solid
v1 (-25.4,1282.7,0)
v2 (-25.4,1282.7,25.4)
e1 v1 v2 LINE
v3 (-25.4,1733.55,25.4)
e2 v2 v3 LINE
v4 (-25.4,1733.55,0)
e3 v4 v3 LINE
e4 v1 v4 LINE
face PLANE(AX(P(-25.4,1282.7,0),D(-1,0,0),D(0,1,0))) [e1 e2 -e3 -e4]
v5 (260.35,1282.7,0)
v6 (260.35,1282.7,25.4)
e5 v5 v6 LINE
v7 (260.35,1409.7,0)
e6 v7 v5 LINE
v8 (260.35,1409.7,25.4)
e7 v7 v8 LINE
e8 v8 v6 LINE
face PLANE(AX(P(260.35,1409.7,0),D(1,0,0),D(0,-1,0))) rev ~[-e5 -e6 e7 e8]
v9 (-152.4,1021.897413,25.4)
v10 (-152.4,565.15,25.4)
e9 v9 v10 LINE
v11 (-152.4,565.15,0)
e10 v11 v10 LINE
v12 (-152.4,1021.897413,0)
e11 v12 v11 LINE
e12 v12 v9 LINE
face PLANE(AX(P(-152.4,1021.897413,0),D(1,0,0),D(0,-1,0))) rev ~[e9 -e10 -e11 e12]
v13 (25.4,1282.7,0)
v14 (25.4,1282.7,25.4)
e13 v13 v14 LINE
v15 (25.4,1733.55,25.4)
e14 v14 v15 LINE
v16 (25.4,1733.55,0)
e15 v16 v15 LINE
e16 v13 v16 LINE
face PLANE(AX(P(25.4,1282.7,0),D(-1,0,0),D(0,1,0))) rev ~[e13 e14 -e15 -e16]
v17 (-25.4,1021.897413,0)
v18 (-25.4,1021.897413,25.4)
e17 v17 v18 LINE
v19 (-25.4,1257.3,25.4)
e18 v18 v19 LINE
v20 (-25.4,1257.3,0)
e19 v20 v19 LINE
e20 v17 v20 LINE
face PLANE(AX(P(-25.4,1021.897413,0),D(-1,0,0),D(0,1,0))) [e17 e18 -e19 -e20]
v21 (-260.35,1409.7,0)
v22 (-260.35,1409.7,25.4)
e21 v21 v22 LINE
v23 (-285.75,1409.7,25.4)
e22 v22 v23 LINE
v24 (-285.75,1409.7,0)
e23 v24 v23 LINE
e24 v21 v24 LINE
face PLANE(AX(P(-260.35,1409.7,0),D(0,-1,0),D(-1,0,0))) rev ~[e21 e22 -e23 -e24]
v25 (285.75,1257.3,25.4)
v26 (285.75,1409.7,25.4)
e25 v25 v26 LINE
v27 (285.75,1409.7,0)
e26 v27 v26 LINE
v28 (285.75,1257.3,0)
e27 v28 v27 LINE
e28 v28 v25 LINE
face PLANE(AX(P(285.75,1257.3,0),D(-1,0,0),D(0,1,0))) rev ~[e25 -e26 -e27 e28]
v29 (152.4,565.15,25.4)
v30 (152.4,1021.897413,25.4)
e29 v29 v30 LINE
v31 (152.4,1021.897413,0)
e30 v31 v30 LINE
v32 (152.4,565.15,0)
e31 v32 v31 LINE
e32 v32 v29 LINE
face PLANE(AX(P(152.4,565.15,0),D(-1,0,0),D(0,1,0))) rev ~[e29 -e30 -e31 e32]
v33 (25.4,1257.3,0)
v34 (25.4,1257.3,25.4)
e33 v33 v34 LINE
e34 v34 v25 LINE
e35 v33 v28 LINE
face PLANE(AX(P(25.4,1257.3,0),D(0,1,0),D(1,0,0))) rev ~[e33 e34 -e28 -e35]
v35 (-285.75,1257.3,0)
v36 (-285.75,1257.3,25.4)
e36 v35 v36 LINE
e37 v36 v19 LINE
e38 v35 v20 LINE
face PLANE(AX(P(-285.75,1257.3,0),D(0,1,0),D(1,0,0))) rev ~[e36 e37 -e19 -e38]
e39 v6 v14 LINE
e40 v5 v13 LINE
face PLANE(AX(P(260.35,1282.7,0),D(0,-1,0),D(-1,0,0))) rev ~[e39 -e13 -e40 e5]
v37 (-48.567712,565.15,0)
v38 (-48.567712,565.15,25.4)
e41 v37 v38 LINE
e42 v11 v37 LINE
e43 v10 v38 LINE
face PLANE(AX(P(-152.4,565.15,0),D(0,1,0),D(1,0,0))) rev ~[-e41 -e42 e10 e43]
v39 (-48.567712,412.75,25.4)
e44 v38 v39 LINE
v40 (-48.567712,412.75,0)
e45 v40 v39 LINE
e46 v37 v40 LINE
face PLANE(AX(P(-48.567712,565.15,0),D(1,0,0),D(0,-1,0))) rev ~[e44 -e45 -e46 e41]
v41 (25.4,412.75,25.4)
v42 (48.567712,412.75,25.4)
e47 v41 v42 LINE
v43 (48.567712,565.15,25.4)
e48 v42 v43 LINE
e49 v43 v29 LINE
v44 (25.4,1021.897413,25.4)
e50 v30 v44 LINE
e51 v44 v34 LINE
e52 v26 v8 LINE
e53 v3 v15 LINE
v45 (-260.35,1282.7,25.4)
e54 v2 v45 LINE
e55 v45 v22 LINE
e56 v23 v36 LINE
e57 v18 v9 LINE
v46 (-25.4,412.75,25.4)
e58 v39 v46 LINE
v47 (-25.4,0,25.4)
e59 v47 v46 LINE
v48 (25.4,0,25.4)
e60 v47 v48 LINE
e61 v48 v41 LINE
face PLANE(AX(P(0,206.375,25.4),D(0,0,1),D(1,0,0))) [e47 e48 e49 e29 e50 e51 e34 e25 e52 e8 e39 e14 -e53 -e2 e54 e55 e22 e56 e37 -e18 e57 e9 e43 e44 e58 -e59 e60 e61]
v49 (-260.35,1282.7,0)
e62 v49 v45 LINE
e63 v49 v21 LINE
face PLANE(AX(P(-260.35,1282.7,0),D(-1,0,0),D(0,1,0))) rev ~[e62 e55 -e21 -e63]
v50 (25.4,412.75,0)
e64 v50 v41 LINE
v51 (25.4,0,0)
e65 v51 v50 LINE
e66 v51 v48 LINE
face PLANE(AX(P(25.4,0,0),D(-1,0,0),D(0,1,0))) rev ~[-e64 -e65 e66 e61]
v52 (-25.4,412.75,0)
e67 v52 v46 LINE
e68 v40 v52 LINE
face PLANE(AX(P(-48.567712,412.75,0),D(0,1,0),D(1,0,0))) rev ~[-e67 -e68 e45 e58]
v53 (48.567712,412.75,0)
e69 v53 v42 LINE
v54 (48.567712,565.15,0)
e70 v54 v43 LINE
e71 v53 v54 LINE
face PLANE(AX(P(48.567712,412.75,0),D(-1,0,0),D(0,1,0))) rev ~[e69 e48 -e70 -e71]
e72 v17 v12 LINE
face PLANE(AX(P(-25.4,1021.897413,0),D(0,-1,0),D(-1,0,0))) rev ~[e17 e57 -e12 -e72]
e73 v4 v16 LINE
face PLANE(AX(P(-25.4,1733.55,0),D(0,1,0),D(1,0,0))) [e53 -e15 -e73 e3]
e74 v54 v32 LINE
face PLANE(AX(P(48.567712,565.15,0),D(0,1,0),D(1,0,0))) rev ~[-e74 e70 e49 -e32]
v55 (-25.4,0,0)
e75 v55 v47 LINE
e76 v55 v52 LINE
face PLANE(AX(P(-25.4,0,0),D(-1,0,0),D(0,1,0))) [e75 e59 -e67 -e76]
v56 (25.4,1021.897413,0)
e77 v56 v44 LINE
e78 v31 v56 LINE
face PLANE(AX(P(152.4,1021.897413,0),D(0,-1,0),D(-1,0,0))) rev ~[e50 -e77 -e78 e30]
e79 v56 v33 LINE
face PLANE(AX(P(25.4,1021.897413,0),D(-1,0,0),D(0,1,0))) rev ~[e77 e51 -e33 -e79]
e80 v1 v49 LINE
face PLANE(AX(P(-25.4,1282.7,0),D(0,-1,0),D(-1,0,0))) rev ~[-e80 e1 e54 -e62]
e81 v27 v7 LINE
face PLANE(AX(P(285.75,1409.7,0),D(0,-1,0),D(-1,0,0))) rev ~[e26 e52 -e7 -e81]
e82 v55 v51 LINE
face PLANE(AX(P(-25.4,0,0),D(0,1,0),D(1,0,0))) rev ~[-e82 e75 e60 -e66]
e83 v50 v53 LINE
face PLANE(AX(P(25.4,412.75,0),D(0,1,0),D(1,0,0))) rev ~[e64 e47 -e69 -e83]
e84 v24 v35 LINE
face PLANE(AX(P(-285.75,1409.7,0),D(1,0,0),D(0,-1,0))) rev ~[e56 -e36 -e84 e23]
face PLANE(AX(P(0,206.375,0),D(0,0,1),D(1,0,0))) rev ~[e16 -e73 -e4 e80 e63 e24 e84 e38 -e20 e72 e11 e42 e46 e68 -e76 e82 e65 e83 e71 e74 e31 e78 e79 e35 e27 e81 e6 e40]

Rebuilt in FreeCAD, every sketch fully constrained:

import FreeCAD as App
import Part
import Sketcher
Q = App.Units.Quantity


def add_polygon(sketch, points):
    """Adds a closed chain of lines whose ends are joined by coincident constraints."""
    first, n = sketch.GeometryCount, len(points)
    for a, b in zip(points, points[1:] + points[:1]):
        sketch.addGeometry(Part.LineSegment(App.Vector(*a, 0), App.Vector(*b, 0)), False)
    for i in range(n):
        sketch.addConstraint(Sketcher.Constraint("Coincident", first + i, 2, first + (i + 1) % n, 1))

doc = App.newDocument("Part")
body = doc.addObject("PartDesign::Body", "Body")

# Sketch on XY plane
sketch1 = body.newObject("Sketcher::SketchObject", "Sketch")
sketch1.AttachmentSupport = (doc.getObject("XY_Plane"), [""])
sketch1.MapMode = "FlatFace"
add_polygon(sketch1, [(49, 413), (49, 565), (152, 565), (152, 1022), (25, 1022), (25, 1257), (286, 1257), (286, 1410), (260, 1410), (260, 1283), (25, 1283), (25, 1734), (-25, 1734), (-25, 1283), (-260, 1283), (-260, 1410), (-286, 1410), (-286, 1257), (-25, 1257), (-25, 1022), (-152, 1022), (-152, 565), (-49, 565), (-49, 413), (-25, 413), (-25, 0), (25, 0), (25, 413)])  # lines 0-27
sketch1.addConstraint([
    Sketcher.Constraint("Vertical", 0),
    Sketcher.Constraint("Horizontal", 1),
    Sketcher.Constraint("Vertical", 2),
    Sketcher.Constraint("Horizontal", 3),
    Sketcher.Constraint("Vertical", 4),
    Sketcher.Constraint("Horizontal", 5),
    Sketcher.Constraint("Vertical", 6),
    Sketcher.Constraint("Horizontal", 7),
    Sketcher.Constraint("Vertical", 8),
    Sketcher.Constraint("Horizontal", 9),
    Sketcher.Constraint("Vertical", 10),
    Sketcher.Constraint("Horizontal", 11),
    Sketcher.Constraint("Vertical", 12),
    Sketcher.Constraint("Horizontal", 13),
    Sketcher.Constraint("Vertical", 14),
    Sketcher.Constraint("Horizontal", 15),
    Sketcher.Constraint("Vertical", 16),
    Sketcher.Constraint("Horizontal", 17),
    Sketcher.Constraint("Vertical", 18),
    Sketcher.Constraint("Horizontal", 19),
    Sketcher.Constraint("Vertical", 20),
    Sketcher.Constraint("Horizontal", 21),
    Sketcher.Constraint("Vertical", 22),
    Sketcher.Constraint("Horizontal", 23),
    Sketcher.Constraint("Vertical", 24),
    Sketcher.Constraint("Horizontal", 25),
    Sketcher.Constraint("Vertical", 26),
    Sketcher.Constraint("Horizontal", 27),
    Sketcher.Constraint("Symmetric", 24, 2, 25, 2, -1, 1),
    Sketcher.Constraint("Symmetric", 9, 2, 12, 2, -2),
    Sketcher.Constraint("Symmetric", 7, 2, 14, 2, -2),
    Sketcher.Constraint("Symmetric", 5, 2, 16, 2, -2),
    Sketcher.Constraint("Symmetric", 3, 2, 18, 2, -2),
    Sketcher.Constraint("Symmetric", 1, 2, 20, 2, -2),
    Sketcher.Constraint("Symmetric", 22, 2, 27, 2, -2),
    Sketcher.Constraint("Vertical", 4, 2, 9, 2),
    Sketcher.Constraint("Vertical", 18, 2, 23, 2),
    Sketcher.Constraint("Equal", 0, 6),
    Sketcher.Constraint("Equal", 19, 8),
    Sketcher.Constraint("DistanceX", 3, 2, 3, 1, Q("5 in")),
    Sketcher.Constraint("DistanceX", 7, 2, 7, 1, Q("1 in")),
    Sketcher.Constraint("DistanceX", 11, 2, 11, 1, Q("2 in")),
    Sketcher.Constraint("DistanceY", 0, 1, 0, 2, Q("6 in")),
    Sketcher.Constraint("DistanceX", 5, 1, 5, 2, Q("10.25 in")),
    Sketcher.Constraint("DistanceY", 10, 1, 10, 2, Q("17.75 in")),
    Sketcher.Constraint("DistanceY", 24, 2, 24, 1, Q("16.25 in")),
    Sketcher.Constraint("DistanceY", -1, 1, 4, 2, Q("49.5 in")),
    Sketcher.Constraint("DistanceX", 1, 1, 1, 2, 103.832288),
    Sketcher.Constraint("DistanceY", 2, 1, 2, 2, 456.747413),
])
pad1 = body.newObject("PartDesign::Pad", "Pad")
pad1.Profile = sketch1
pad1.Length = Q("1 in")

doc.recompute()
